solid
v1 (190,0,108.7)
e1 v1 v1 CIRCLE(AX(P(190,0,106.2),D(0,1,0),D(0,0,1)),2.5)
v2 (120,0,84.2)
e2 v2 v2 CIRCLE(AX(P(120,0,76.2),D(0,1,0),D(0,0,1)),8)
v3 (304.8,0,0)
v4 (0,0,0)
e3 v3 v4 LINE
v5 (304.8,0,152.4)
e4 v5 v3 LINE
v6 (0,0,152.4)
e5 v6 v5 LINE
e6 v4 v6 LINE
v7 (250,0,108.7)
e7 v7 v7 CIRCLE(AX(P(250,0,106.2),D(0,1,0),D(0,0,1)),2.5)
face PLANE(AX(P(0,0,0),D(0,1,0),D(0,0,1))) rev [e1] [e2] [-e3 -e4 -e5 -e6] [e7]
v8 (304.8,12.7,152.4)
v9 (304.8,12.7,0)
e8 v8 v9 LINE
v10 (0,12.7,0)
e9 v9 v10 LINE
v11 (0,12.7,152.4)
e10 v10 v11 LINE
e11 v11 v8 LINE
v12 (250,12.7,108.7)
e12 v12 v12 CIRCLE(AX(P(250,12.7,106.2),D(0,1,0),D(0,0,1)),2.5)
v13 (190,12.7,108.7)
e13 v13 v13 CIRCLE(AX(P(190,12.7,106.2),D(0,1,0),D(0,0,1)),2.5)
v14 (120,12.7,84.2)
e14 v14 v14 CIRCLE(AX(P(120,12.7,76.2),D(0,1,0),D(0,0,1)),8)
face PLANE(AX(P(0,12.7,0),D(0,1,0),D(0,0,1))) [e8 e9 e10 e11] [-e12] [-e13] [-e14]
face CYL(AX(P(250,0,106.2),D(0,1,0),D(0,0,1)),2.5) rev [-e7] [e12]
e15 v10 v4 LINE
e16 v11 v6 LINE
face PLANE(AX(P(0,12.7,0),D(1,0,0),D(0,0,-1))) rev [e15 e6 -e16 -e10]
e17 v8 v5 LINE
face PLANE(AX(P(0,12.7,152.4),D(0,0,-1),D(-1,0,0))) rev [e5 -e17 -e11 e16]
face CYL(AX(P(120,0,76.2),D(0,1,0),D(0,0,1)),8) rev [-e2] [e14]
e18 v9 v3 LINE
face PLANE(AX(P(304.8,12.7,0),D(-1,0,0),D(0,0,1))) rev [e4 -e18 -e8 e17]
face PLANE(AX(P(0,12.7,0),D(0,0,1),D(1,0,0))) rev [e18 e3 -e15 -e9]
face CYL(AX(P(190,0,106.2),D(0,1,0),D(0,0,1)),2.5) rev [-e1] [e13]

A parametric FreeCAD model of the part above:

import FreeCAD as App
import Part
import Sketcher


def add_polygon(sketch, points):
    """Adds a closed chain of lines whose ends are joined by coincident constraints."""
    first, n = sketch.GeometryCount, len(points)
    for a, b in zip(points, points[1:] + points[:1]):
        sketch.addGeometry(Part.LineSegment(App.Vector(*a, 0), App.Vector(*b, 0)), False)
    for i in range(n):
        sketch.addConstraint(Sketcher.Constraint("Coincident", first + i, 2, first + (i + 1) % n, 1))

doc = App.newDocument("Part")
params = doc.addObject("Spreadsheet::Sheet", "Params")
for row, (alias, value) in enumerate([
    ("sketch1_width", "304.8 mm"),
    ("sketch1_height", "152.4 mm"),
    ("pad1_length", "12.7 mm"),
    ("sketch2_diameter", "16 mm"),
    ("sketch2_diameter2", "5 mm"),
], start=1):
    params.set(f"A{row}", alias)
    params.set(f"B{row}", "=" + value)
    params.setAlias(f"B{row}", alias)

body = doc.addObject("PartDesign::Body", "Body")

# Sketch on XZ plane
sketch1 = body.newObject("Sketcher::SketchObject", "Sketch")
sketch1.AttachmentSupport = (doc.getObject("XZ_Plane"), [""])
sketch1.MapMode = "FlatFace"
add_polygon(sketch1, [(0, 0), (0, 152.4), (304.8, 152.4), (304.8, 0)])  # lines 0-3
sketch1.addConstraint(Sketcher.Constraint("Vertical", 0))
sketch1.addConstraint(Sketcher.Constraint("Horizontal", 1))
sketch1.addConstraint(Sketcher.Constraint("Vertical", 2))
sketch1.addConstraint(Sketcher.Constraint("Horizontal", 3))
sketch1.addConstraint(Sketcher.Constraint("Coincident", 3, 2, -1, 1))
sketch1.addConstraint(Sketcher.Constraint("DistanceX", 1, 1, 1, 2, 304.8))
sketch1.addConstraint(Sketcher.Constraint("DistanceY", 0, 1, 0, 2, 152.4))
sketch1.setExpression("Constraints[9]", "Params.sketch1_width")
sketch1.setExpression("Constraints[10]", "Params.sketch1_height")
pad1 = body.newObject("PartDesign::Pad", "Pad")
pad1.Profile = sketch1
pad1.setExpression("Length", "Params.pad1_length")
pad1.Reversed = True

# Sketch on XZ plane
sketch2 = body.newObject("Sketcher::SketchObject", "Sketch001")
sketch2.AttachmentSupport = (doc.getObject("XZ_Plane"), [""])
sketch2.MapMode = "FlatFace"
sketch2.AttachmentOffset = App.Placement(App.Vector(0, 0, -12.7), App.Rotation())
sketch2.addGeometry(Part.Circle(App.Vector(120, 76.2, 0), App.Vector(0, 0, 1), 8), False)
sketch2.addGeometry(Part.Circle(App.Vector(250, 106.2, 0), App.Vector(0, 0, 1), 2.5), False)
sketch2.addGeometry(Part.Circle(App.Vector(190, 106.2, 0), App.Vector(0, 0, 1), 2.5), False)
sketch2.addConstraint(Sketcher.Constraint("Equal", 1, 2))
sketch2.addConstraint(Sketcher.Constraint("Horizontal", 1, 3, 2, 3))
sketch2.addConstraint(Sketcher.Constraint("Diameter", 0, 16.0))
sketch2.addConstraint(Sketcher.Constraint("Diameter", 1, 5.0))
sketch2.addConstraint(Sketcher.Constraint("DistanceX", -1, 1, 0, 3, 120.0))
sketch2.addConstraint(Sketcher.Constraint("DistanceX", -1, 1, 1, 3, 250.0))
sketch2.addConstraint(Sketcher.Constraint("DistanceX", -1, 1, 2, 3, 190.0))
sketch2.addConstraint(Sketcher.Constraint("DistanceY", 0, 3, 1, 3, 30.0))
sketch2.addConstraint(Sketcher.Constraint("DistanceY", -1, 1, 0, 3, 76.2))
sketch2.setExpression("Constraints[2]", "Params.sketch2_diameter")
sketch2.setExpression("Constraints[3]", "Params.sketch2_diameter2")
pocket1 = body.newObject("PartDesign::Pocket", "Pocket")
pocket1.Profile = sketch2
pocket1.Type = "ThroughAll"
pocket1.Reversed = True

doc.recompute()
